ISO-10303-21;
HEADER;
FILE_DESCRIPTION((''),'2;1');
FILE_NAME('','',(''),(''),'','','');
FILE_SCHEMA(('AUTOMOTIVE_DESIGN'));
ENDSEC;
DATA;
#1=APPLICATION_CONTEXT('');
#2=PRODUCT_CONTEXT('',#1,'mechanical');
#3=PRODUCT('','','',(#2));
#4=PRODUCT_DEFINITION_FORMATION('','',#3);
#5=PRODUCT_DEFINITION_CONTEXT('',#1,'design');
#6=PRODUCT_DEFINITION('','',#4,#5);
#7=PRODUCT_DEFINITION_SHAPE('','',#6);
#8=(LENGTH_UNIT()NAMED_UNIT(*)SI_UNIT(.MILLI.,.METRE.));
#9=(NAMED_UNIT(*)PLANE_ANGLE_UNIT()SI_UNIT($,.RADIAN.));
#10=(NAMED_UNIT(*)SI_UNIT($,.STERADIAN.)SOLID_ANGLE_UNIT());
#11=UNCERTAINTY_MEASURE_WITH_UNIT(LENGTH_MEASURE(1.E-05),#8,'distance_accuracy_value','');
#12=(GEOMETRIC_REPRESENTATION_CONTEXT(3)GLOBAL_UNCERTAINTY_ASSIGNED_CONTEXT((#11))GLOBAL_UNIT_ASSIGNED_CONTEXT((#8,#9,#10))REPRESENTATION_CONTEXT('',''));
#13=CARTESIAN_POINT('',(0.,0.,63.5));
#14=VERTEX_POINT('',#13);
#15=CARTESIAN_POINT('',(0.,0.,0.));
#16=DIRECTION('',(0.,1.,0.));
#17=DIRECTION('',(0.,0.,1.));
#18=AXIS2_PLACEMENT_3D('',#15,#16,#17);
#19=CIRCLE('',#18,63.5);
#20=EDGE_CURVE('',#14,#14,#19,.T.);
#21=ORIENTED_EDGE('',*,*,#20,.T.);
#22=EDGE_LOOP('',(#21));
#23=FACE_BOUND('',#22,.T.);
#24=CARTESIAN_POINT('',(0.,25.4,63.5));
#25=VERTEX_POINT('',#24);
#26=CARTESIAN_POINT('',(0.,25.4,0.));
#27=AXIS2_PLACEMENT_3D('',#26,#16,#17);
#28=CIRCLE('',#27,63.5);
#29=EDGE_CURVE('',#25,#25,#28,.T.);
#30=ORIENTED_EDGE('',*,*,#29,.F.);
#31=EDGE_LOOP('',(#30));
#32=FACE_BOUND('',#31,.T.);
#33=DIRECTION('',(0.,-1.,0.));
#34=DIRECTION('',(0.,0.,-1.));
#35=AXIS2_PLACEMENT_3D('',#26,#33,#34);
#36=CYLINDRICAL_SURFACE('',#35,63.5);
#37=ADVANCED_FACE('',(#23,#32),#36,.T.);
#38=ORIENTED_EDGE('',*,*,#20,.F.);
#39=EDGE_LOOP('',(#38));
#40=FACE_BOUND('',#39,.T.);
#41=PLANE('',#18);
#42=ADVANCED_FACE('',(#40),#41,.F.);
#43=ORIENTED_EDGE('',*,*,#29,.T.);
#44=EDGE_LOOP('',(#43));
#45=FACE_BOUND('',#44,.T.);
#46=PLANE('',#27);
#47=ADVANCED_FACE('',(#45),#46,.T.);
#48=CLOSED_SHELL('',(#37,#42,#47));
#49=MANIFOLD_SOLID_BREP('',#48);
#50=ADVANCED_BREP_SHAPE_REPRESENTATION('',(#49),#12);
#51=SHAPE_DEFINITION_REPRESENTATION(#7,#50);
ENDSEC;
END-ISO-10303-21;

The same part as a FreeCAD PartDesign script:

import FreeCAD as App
import Part
import Sketcher
from FreeCAD import Vector
Q = App.Units.Quantity

doc = App.newDocument("Part")
body = doc.addObject("PartDesign::Body", "Body")

# Sketch on XZ plane
sketch1 = doc.addObject("Sketcher::SketchObject", "Sketch")
body.addObject(sketch1)
sketch1.AttachmentSupport = (doc.XZ_Plane, [""])
sketch1.MapMode = "FlatFace"
sketch1.addGeometry(Part.Circle(Vector(0, 0, 0), Vector(0, 0, 1), 64), False)
sketch1.addConstraint([
    Sketcher.Constraint("Coincident", 0, 3, -1, 1),
    Sketcher.Constraint("Diameter", 0, Q("5 in")),
])
pad1 = doc.addObject("PartDesign::Pad", "Pad")
body.addObject(pad1)
pad1.Profile = sketch1
pad1.Length = Q("1 in")
pad1.Reversed = True

doc.recompute()
